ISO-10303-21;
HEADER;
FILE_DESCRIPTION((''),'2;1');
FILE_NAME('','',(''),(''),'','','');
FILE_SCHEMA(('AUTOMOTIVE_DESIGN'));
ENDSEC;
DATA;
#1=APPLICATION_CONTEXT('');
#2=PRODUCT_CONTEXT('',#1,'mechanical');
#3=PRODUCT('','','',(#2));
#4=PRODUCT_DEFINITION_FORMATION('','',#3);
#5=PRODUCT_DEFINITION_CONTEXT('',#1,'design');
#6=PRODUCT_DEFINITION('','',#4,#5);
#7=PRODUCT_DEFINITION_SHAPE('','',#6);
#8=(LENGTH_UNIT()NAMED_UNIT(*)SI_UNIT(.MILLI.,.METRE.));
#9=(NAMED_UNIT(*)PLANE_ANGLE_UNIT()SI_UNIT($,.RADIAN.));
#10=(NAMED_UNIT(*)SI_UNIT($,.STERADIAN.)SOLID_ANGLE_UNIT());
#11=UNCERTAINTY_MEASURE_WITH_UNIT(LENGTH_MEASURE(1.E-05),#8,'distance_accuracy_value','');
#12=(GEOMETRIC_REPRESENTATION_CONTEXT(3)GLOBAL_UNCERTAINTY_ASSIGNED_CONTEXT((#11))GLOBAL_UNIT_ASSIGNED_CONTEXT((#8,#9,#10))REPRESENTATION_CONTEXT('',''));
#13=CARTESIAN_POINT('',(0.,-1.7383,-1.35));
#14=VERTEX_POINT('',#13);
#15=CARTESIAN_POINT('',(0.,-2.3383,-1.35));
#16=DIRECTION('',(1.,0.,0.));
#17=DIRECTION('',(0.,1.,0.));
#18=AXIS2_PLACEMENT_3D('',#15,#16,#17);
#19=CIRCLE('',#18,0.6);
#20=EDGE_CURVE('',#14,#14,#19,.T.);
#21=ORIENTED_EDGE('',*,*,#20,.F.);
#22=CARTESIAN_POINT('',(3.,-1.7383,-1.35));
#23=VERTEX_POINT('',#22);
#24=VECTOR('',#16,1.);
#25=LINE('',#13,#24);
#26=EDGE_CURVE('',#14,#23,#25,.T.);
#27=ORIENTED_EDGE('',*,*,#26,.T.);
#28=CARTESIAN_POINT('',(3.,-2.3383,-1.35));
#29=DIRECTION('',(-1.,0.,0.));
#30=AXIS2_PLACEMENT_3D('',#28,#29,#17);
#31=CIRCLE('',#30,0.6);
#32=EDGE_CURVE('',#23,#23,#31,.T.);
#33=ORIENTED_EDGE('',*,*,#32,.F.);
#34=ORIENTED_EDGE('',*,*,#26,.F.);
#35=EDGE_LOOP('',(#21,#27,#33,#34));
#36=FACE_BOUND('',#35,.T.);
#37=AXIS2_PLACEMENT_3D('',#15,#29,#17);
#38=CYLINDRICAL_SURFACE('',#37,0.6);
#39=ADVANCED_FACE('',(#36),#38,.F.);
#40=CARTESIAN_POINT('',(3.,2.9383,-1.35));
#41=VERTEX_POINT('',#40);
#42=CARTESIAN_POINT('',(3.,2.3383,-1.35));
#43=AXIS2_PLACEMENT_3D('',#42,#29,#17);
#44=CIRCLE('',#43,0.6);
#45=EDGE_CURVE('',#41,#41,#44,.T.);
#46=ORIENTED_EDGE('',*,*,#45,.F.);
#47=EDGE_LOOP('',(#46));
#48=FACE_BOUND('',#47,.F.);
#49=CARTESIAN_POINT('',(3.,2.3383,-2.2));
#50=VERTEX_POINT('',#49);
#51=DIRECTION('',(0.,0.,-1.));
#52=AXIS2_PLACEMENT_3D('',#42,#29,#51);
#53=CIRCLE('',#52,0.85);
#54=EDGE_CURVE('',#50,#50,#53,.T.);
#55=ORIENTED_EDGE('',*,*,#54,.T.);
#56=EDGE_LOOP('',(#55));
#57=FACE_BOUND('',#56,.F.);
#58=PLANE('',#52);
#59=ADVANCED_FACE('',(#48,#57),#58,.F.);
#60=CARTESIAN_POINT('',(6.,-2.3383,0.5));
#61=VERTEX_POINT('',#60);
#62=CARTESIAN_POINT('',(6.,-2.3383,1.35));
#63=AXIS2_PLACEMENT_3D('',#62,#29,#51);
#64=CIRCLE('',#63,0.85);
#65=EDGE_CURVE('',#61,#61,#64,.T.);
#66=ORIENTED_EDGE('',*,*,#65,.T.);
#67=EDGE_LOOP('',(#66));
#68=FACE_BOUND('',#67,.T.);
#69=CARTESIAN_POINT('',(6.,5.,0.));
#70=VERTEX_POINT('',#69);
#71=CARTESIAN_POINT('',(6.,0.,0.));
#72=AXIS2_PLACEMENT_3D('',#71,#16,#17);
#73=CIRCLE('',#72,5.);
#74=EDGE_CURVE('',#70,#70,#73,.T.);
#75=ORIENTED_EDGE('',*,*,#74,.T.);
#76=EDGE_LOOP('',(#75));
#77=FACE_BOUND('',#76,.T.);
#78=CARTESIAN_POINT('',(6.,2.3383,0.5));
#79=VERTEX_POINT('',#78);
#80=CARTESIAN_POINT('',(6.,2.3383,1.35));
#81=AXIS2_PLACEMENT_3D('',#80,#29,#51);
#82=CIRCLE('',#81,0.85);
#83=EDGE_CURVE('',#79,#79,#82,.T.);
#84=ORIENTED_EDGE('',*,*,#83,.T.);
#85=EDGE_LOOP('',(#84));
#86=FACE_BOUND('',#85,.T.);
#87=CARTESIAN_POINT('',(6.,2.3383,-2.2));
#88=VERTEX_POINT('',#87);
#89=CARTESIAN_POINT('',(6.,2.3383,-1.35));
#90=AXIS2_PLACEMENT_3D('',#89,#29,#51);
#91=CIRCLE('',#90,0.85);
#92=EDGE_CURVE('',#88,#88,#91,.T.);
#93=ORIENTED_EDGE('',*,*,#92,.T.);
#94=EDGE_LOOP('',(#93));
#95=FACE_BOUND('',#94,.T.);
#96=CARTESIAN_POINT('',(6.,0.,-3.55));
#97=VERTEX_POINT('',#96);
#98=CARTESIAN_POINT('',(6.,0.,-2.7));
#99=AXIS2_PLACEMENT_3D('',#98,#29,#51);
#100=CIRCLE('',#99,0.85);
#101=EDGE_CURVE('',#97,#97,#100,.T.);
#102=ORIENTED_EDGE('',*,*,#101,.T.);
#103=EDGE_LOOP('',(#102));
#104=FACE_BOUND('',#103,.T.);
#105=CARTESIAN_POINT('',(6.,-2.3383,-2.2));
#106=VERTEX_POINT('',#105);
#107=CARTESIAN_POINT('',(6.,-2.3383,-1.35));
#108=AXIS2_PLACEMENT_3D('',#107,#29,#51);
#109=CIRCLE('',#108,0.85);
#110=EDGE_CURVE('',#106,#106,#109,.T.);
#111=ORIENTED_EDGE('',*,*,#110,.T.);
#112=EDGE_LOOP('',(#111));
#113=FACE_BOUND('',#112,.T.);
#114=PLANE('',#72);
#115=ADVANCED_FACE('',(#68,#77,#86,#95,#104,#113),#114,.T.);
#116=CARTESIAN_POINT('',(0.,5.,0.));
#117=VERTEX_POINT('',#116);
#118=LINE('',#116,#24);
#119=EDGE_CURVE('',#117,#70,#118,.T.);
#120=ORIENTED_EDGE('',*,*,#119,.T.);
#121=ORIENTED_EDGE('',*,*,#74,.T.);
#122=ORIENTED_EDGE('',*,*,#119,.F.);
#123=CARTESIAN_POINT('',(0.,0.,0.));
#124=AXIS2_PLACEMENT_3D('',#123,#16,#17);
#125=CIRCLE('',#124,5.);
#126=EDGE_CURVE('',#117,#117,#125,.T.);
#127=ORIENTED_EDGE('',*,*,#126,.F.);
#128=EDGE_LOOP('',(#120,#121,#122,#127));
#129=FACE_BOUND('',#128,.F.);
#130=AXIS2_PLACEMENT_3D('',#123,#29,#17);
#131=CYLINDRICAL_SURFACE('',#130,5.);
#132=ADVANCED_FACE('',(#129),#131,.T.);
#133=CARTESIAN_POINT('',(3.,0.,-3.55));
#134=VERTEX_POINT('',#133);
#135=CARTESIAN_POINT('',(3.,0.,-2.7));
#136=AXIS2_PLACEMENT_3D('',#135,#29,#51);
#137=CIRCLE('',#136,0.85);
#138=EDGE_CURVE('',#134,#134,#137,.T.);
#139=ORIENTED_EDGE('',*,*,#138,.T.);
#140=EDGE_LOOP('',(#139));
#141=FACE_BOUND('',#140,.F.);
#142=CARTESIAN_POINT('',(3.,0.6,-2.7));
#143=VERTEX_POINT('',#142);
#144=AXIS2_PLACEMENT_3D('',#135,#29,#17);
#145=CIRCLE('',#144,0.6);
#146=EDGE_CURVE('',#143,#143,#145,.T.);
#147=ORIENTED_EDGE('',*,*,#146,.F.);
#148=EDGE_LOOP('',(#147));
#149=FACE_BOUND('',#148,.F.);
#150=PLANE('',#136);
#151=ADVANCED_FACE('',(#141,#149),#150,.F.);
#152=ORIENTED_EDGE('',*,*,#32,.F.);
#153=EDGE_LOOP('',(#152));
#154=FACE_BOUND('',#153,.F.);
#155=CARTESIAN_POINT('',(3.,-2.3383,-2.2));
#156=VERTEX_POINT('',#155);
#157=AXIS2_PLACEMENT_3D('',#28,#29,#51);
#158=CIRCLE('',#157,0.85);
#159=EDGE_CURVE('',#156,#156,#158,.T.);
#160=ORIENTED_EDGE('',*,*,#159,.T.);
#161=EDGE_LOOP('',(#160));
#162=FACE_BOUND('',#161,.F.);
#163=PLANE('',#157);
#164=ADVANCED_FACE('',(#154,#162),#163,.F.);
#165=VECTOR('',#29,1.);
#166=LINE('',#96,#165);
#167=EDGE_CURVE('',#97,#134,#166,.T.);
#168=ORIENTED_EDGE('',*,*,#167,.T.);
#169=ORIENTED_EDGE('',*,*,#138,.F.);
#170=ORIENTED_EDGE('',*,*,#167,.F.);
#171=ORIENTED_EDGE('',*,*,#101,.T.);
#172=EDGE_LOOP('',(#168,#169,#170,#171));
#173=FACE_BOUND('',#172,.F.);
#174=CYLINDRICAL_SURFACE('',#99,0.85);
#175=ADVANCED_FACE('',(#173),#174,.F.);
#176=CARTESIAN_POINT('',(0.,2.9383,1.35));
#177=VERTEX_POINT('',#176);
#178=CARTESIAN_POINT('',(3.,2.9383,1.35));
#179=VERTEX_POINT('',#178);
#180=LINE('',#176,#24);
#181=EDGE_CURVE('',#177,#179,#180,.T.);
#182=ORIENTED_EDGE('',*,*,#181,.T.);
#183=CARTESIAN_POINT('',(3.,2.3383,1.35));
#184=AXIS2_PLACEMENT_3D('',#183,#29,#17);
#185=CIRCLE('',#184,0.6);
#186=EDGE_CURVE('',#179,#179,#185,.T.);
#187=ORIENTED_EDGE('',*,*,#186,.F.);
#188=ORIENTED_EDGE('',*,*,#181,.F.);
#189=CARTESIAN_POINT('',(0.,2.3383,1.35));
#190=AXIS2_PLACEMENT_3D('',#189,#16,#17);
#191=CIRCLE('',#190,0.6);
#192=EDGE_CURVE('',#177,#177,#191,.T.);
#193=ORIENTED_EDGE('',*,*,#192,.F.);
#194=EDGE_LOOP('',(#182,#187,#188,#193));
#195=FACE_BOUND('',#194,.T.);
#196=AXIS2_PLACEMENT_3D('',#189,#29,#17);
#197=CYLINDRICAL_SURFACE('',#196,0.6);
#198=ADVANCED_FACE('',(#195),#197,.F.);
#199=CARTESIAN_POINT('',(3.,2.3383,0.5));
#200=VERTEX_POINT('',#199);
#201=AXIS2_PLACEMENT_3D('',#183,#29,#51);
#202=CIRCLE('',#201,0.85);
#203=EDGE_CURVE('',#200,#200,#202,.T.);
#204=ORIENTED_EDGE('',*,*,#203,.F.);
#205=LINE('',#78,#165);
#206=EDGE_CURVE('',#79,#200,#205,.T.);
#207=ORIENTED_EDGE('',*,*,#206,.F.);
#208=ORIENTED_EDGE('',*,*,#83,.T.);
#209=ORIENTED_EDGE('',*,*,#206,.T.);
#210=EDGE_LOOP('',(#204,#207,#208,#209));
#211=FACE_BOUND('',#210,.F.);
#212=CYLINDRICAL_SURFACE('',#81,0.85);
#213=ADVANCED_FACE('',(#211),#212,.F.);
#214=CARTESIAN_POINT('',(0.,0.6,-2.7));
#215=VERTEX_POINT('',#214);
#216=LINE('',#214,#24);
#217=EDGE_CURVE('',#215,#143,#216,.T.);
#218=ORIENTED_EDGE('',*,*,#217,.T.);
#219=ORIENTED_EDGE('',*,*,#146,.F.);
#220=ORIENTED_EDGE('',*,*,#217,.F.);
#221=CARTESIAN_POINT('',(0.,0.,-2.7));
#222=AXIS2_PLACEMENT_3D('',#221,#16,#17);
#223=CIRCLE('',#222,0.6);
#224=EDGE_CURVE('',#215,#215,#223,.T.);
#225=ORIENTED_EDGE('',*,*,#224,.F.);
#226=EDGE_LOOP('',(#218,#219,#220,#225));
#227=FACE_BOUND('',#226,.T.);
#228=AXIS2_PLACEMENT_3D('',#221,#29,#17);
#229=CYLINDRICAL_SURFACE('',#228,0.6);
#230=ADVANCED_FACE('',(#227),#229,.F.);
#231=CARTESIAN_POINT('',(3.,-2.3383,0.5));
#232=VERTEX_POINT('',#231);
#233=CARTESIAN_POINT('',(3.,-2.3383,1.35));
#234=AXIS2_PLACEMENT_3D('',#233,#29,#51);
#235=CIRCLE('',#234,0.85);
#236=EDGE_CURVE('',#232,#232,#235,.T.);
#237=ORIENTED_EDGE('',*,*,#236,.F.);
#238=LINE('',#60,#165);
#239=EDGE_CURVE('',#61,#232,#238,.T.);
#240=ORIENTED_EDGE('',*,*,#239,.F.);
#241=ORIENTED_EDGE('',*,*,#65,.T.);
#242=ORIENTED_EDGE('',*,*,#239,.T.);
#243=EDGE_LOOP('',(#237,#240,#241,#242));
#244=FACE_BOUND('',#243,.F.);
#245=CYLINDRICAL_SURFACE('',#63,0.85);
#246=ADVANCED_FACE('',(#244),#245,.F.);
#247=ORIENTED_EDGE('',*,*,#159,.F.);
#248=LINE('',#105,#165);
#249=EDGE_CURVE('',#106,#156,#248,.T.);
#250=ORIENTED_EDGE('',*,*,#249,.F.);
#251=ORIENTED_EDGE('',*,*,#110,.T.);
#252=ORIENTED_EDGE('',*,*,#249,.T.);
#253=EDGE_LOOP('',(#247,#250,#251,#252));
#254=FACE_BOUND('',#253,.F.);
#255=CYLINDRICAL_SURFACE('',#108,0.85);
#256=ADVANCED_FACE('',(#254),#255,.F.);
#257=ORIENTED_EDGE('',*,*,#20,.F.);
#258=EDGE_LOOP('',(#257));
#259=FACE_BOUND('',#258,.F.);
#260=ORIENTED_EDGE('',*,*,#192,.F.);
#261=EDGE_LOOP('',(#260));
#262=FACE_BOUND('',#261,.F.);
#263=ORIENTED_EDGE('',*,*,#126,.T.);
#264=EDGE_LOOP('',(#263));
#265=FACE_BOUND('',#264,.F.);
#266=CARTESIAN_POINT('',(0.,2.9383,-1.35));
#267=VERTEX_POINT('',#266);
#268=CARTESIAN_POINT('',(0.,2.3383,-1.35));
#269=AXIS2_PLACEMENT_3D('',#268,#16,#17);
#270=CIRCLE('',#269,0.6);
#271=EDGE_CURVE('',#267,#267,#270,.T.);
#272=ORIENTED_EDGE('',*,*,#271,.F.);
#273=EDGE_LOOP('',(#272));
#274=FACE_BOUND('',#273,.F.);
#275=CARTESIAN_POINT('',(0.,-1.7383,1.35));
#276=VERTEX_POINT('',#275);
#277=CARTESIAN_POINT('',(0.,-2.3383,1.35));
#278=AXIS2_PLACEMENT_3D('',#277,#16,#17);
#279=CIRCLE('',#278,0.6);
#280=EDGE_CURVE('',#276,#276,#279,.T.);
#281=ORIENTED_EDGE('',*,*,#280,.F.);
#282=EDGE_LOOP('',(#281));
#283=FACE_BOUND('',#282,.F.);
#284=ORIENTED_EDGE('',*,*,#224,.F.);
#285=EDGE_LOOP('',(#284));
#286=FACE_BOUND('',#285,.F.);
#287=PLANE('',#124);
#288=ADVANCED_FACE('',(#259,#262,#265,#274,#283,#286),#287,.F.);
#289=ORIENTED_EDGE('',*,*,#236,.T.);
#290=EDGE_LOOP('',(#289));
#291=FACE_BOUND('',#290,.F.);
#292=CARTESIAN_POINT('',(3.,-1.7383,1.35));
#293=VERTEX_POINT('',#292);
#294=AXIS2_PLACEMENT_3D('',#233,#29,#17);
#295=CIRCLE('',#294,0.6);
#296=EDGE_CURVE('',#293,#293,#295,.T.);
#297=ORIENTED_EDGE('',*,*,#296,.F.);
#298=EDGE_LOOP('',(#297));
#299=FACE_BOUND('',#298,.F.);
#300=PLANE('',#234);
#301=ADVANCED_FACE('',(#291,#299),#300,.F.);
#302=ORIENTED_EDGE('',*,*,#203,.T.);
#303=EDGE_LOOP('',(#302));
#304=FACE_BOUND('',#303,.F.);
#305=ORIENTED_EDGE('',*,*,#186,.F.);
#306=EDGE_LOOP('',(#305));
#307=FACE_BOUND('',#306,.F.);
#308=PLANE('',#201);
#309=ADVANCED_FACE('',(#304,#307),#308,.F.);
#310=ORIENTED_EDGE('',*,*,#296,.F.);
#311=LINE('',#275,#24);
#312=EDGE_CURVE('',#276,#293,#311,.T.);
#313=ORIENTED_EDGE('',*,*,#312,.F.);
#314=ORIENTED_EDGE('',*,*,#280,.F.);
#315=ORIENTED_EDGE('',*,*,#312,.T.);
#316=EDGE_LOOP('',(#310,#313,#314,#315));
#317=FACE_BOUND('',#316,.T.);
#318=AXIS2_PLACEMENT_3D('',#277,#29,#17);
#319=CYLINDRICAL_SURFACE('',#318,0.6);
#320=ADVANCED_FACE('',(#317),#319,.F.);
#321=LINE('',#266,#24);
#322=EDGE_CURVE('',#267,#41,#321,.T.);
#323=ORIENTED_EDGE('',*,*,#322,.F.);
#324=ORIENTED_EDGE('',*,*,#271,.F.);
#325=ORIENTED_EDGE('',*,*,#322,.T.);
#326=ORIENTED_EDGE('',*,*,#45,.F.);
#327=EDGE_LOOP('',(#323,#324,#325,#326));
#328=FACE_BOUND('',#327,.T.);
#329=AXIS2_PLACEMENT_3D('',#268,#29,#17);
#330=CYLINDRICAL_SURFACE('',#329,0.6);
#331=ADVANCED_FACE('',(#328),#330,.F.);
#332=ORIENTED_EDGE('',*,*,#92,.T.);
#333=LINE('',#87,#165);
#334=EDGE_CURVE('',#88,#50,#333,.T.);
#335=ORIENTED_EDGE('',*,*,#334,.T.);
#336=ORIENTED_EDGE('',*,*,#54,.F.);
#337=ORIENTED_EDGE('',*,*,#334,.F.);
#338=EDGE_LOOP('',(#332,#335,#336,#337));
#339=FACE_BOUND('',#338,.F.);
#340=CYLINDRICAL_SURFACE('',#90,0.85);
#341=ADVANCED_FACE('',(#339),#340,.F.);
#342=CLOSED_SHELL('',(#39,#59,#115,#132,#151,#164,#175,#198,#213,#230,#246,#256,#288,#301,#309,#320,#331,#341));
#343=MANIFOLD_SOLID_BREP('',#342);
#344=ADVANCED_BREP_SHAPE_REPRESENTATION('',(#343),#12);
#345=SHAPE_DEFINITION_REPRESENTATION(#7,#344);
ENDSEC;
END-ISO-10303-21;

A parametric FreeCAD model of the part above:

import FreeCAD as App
import Part
import Sketcher

doc = App.newDocument("Part")
params = doc.addObject("Spreadsheet::Sheet", "Params")
for row, (alias, value) in enumerate([
    ("sketch1_diameter", "10 mm"),
    ("sketch1_diameter2", "1.2 mm"),
    ("pad1_length", "6 mm"),
    ("sketch2_diameter", "1.7 mm"),
    ("hole_diameter", "1.7 mm"),
    ("hole_depth", "3 mm"),
    ("sketch3_diameter", "1.2 mm"),
    ("pocket1_length", "6 mm"),
    ("sketch4_diameter", "1.7 mm"),
    ("hole2_diameter", "1.7 mm"),
    ("hole2_depth", "3 mm"),
    ("sketch5_diameter", "1.7 mm"),
    ("hole3_diameter", "1.7 mm"),
    ("hole3_depth", "3 mm"),
    ("sketch6_diameter", "1.2 mm"),
    ("pocket2_length", "6 mm"),
    ("sketch7_diameter", "1.7 mm"),
    ("hole4_diameter", "1.7 mm"),
    ("hole4_depth", "3 mm"),
    ("sketch8_diameter", "1.7 mm"),
    ("hole5_diameter", "1.7 mm"),
    ("hole5_depth", "3 mm"),
], start=1):
    params.set(f"A{row}", alias)
    params.set(f"B{row}", "=" + value)
    params.setAlias(f"B{row}", alias)

body = doc.addObject("PartDesign::Body", "Body")

# Sketch on YZ plane
sketch1 = body.newObject("Sketcher::SketchObject", "Sketch")
sketch1.AttachmentSupport = (doc.getObject("YZ_Plane"), [""])
sketch1.MapMode = "FlatFace"
sketch1.addGeometry([
    Part.Circle(App.Vector(0, 0, 0), App.Vector(0, 0, 1), 5),
    Part.Circle(App.Vector(0, -2.7, 0), App.Vector(0, 0, 1), 0.6),
], False)
sketch1.addConstraint([
    Sketcher.Constraint("Coincident", 0, 3, -1, 1),
    Sketcher.Constraint("PointOnObject", 1, 3, -2),
    Sketcher.Constraint("Diameter", 0, 10.0),
    Sketcher.Constraint("Diameter", 1, 1.2),
    Sketcher.Constraint("DistanceY", 1, 3, -1, 1, 2.7),
])
sketch1.setExpression("Constraints[2]", "Params.sketch1_diameter")
sketch1.setExpression("Constraints[3]", "Params.sketch1_diameter2")
pad1 = body.newObject("PartDesign::Pad", "Pad")
pad1.Profile = sketch1
pad1.setExpression("Length", "Params.pad1_length")

# Sketch on YZ plane
sketch2 = body.newObject("Sketcher::SketchObject", "Sketch001")
sketch2.AttachmentSupport = (doc.getObject("YZ_Plane"), [""])
sketch2.MapMode = "FlatFace"
sketch2.AttachmentOffset = App.Placement(App.Vector(0, 0, 6), App.Rotation())
sketch2.addGeometry(Part.Circle(App.Vector(0, -2.7, 0), App.Vector(0, 0, 1), 0.8), False)
sketch2.addConstraint([
    Sketcher.Constraint("PointOnObject", 0, 3, -2),
    Sketcher.Constraint("Diameter", 0, 1.7),
    Sketcher.Constraint("DistanceY", 0, 3, -1, 1, 2.7),
])
sketch2.setExpression("Constraints[1]", "Params.sketch2_diameter")
doc.recompute()
hole = body.newObject("PartDesign::Hole", "Hole")
hole.Profile = sketch2
hole.ThreadType = "None"
hole.setExpression("Diameter", "Params.hole_diameter")
hole.DepthType = "Dimension"
hole.setExpression("Depth", "Params.hole_depth")
hole.DrillPoint = "Flat"

# Sketch on YZ plane
sketch3 = body.newObject("Sketcher::SketchObject", "Sketch002")
sketch3.AttachmentSupport = (doc.getObject("YZ_Plane"), [""])
sketch3.MapMode = "FlatFace"
sketch3.addGeometry([
    Part.Circle(App.Vector(-2.3, 1.4, 0), App.Vector(0, 0, 1), 0.6),
    Part.Circle(App.Vector(2.3, 1.4, 0), App.Vector(0, 0, 1), 0.6),
], False)
sketch3.addConstraint([
    Sketcher.Constraint("Equal", 0, 1),
    Sketcher.Constraint("Symmetric", 0, 3, 1, 3, -2),
    Sketcher.Constraint("Diameter", 0, 1.2),
    Sketcher.Constraint("DistanceY", -1, 1, 0, 3, 1.35),
    Sketcher.Constraint("DistanceX", 0, 3, -1, 1, 2.3383),
])
sketch3.setExpression("Constraints[2]", "Params.sketch3_diameter")
pocket1 = body.newObject("PartDesign::Pocket", "Pocket")
pocket1.Profile = sketch3
pocket1.setExpression("Length", "Params.pocket1_length")
pocket1.Reversed = True

# Sketch on YZ plane
sketch4 = body.newObject("Sketcher::SketchObject", "Sketch003")
sketch4.AttachmentSupport = (doc.getObject("YZ_Plane"), [""])
sketch4.MapMode = "FlatFace"
sketch4.AttachmentOffset = App.Placement(App.Vector(0, 0, 6), App.Rotation())
sketch4.addGeometry(Part.Circle(App.Vector(2.3, 1.4, 0), App.Vector(0, 0, 1), 0.8), False)
sketch4.addConstraint([
    Sketcher.Constraint("Diameter", 0, 1.7),
    Sketcher.Constraint("DistanceY", -1, 1, 0, 3, 1.35),
    Sketcher.Constraint("DistanceX", -1, 1, 0, 3, 2.3383),
])
sketch4.setExpression("Constraints[0]", "Params.sketch4_diameter")
doc.recompute()
hole2 = body.newObject("PartDesign::Hole", "Hole001")
hole2.Profile = sketch4
hole2.ThreadType = "None"
hole2.setExpression("Diameter", "Params.hole2_diameter")
hole2.DepthType = "Dimension"
hole2.setExpression("Depth", "Params.hole2_depth")
hole2.DrillPoint = "Flat"

# Sketch on YZ plane
sketch5 = body.newObject("Sketcher::SketchObject", "Sketch004")
sketch5.AttachmentSupport = (doc.getObject("YZ_Plane"), [""])
sketch5.MapMode = "FlatFace"
sketch5.AttachmentOffset = App.Placement(App.Vector(0, 0, 6), App.Rotation())
sketch5.addGeometry(Part.Circle(App.Vector(-2.3, 1.4, 0), App.Vector(0, 0, 1), 0.8), False)
sketch5.addConstraint([
    Sketcher.Constraint("Diameter", 0, 1.7),
    Sketcher.Constraint("DistanceY", -1, 1, 0, 3, 1.35),
    Sketcher.Constraint("DistanceX", 0, 3, -1, 1, 2.3383),
])
sketch5.setExpression("Constraints[0]", "Params.sketch5_diameter")
doc.recompute()
hole3 = body.newObject("PartDesign::Hole", "Hole002")
hole3.Profile = sketch5
hole3.ThreadType = "None"
hole3.setExpression("Diameter", "Params.hole3_diameter")
hole3.DepthType = "Dimension"
hole3.setExpression("Depth", "Params.hole3_depth")
hole3.DrillPoint = "Flat"

# Sketch on YZ plane
sketch6 = body.newObject("Sketcher::SketchObject", "Sketch005")
sketch6.AttachmentSupport = (doc.getObject("YZ_Plane"), [""])
sketch6.MapMode = "FlatFace"
sketch6.addGeometry([
    Part.Circle(App.Vector(-2.3, -1.4, 0), App.Vector(0, 0, 1), 0.6),
    Part.Circle(App.Vector(2.3, -1.4, 0), App.Vector(0, 0, 1), 0.6),
], False)
sketch6.addConstraint([
    Sketcher.Constraint("Equal", 0, 1),
    Sketcher.Constraint("Symmetric", 0, 3, 1, 3, -2),
    Sketcher.Constraint("Diameter", 0, 1.2),
    Sketcher.Constraint("DistanceY", 0, 3, -1, 1, 1.35),
    Sketcher.Constraint("DistanceX", 0, 3, -1, 1, 2.3383),
])
sketch6.setExpression("Constraints[2]", "Params.sketch6_diameter")
pocket2 = body.newObject("PartDesign::Pocket", "Pocket001")
pocket2.Profile = sketch6
pocket2.setExpression("Length", "Params.pocket2_length")
pocket2.Reversed = True

# Sketch on YZ plane
sketch7 = body.newObject("Sketcher::SketchObject", "Sketch006")
sketch7.AttachmentSupport = (doc.getObject("YZ_Plane"), [""])
sketch7.MapMode = "FlatFace"
sketch7.AttachmentOffset = App.Placement(App.Vector(0, 0, 6), App.Rotation())
sketch7.addGeometry(Part.Circle(App.Vector(2.3, -1.4, 0), App.Vector(0, 0, 1), 0.8), False)
sketch7.addConstraint([
    Sketcher.Constraint("Diameter", 0, 1.7),
    Sketcher.Constraint("DistanceY", 0, 3, -1, 1, 1.35),
    Sketcher.Constraint("DistanceX", -1, 1, 0, 3, 2.3383),
])
sketch7.setExpression("Constraints[0]", "Params.sketch7_diameter")
doc.recompute()
hole4 = body.newObject("PartDesign::Hole", "Hole003")
hole4.Profile = sketch7
hole4.ThreadType = "None"
hole4.setExpression("Diameter", "Params.hole4_diameter")
hole4.DepthType = "Dimension"
hole4.setExpression("Depth", "Params.hole4_depth")
hole4.DrillPoint = "Flat"

# Sketch on YZ plane
sketch8 = body.newObject("Sketcher::SketchObject", "Sketch007")
sketch8.AttachmentSupport = (doc.getObject("YZ_Plane"), [""])
sketch8.MapMode = "FlatFace"
sketch8.AttachmentOffset = App.Placement(App.Vector(0, 0, 6), App.Rotation())
sketch8.addGeometry(Part.Circle(App.Vector(-2.3, -1.4, 0), App.Vector(0, 0, 1), 0.8), False)
sketch8.addConstraint([
    Sketcher.Constraint("Diameter", 0, 1.7),
    Sketcher.Constraint("DistanceY", 0, 3, -1, 1, 1.35),
    Sketcher.Constraint("DistanceX", 0, 3, -1, 1, 2.3383),
])
sketch8.setExpression("Constraints[0]", "Params.sketch8_diameter")
doc.recompute()
hole5 = body.newObject("PartDesign::Hole", "Hole004")
hole5.Profile = sketch8
hole5.ThreadType = "None"
hole5.setExpression("Diameter", "Params.hole5_diameter")
hole5.DepthType = "Dimension"
hole5.setExpression("Depth", "Params.hole5_depth")
hole5.DrillPoint = "Flat"

doc.recompute()
